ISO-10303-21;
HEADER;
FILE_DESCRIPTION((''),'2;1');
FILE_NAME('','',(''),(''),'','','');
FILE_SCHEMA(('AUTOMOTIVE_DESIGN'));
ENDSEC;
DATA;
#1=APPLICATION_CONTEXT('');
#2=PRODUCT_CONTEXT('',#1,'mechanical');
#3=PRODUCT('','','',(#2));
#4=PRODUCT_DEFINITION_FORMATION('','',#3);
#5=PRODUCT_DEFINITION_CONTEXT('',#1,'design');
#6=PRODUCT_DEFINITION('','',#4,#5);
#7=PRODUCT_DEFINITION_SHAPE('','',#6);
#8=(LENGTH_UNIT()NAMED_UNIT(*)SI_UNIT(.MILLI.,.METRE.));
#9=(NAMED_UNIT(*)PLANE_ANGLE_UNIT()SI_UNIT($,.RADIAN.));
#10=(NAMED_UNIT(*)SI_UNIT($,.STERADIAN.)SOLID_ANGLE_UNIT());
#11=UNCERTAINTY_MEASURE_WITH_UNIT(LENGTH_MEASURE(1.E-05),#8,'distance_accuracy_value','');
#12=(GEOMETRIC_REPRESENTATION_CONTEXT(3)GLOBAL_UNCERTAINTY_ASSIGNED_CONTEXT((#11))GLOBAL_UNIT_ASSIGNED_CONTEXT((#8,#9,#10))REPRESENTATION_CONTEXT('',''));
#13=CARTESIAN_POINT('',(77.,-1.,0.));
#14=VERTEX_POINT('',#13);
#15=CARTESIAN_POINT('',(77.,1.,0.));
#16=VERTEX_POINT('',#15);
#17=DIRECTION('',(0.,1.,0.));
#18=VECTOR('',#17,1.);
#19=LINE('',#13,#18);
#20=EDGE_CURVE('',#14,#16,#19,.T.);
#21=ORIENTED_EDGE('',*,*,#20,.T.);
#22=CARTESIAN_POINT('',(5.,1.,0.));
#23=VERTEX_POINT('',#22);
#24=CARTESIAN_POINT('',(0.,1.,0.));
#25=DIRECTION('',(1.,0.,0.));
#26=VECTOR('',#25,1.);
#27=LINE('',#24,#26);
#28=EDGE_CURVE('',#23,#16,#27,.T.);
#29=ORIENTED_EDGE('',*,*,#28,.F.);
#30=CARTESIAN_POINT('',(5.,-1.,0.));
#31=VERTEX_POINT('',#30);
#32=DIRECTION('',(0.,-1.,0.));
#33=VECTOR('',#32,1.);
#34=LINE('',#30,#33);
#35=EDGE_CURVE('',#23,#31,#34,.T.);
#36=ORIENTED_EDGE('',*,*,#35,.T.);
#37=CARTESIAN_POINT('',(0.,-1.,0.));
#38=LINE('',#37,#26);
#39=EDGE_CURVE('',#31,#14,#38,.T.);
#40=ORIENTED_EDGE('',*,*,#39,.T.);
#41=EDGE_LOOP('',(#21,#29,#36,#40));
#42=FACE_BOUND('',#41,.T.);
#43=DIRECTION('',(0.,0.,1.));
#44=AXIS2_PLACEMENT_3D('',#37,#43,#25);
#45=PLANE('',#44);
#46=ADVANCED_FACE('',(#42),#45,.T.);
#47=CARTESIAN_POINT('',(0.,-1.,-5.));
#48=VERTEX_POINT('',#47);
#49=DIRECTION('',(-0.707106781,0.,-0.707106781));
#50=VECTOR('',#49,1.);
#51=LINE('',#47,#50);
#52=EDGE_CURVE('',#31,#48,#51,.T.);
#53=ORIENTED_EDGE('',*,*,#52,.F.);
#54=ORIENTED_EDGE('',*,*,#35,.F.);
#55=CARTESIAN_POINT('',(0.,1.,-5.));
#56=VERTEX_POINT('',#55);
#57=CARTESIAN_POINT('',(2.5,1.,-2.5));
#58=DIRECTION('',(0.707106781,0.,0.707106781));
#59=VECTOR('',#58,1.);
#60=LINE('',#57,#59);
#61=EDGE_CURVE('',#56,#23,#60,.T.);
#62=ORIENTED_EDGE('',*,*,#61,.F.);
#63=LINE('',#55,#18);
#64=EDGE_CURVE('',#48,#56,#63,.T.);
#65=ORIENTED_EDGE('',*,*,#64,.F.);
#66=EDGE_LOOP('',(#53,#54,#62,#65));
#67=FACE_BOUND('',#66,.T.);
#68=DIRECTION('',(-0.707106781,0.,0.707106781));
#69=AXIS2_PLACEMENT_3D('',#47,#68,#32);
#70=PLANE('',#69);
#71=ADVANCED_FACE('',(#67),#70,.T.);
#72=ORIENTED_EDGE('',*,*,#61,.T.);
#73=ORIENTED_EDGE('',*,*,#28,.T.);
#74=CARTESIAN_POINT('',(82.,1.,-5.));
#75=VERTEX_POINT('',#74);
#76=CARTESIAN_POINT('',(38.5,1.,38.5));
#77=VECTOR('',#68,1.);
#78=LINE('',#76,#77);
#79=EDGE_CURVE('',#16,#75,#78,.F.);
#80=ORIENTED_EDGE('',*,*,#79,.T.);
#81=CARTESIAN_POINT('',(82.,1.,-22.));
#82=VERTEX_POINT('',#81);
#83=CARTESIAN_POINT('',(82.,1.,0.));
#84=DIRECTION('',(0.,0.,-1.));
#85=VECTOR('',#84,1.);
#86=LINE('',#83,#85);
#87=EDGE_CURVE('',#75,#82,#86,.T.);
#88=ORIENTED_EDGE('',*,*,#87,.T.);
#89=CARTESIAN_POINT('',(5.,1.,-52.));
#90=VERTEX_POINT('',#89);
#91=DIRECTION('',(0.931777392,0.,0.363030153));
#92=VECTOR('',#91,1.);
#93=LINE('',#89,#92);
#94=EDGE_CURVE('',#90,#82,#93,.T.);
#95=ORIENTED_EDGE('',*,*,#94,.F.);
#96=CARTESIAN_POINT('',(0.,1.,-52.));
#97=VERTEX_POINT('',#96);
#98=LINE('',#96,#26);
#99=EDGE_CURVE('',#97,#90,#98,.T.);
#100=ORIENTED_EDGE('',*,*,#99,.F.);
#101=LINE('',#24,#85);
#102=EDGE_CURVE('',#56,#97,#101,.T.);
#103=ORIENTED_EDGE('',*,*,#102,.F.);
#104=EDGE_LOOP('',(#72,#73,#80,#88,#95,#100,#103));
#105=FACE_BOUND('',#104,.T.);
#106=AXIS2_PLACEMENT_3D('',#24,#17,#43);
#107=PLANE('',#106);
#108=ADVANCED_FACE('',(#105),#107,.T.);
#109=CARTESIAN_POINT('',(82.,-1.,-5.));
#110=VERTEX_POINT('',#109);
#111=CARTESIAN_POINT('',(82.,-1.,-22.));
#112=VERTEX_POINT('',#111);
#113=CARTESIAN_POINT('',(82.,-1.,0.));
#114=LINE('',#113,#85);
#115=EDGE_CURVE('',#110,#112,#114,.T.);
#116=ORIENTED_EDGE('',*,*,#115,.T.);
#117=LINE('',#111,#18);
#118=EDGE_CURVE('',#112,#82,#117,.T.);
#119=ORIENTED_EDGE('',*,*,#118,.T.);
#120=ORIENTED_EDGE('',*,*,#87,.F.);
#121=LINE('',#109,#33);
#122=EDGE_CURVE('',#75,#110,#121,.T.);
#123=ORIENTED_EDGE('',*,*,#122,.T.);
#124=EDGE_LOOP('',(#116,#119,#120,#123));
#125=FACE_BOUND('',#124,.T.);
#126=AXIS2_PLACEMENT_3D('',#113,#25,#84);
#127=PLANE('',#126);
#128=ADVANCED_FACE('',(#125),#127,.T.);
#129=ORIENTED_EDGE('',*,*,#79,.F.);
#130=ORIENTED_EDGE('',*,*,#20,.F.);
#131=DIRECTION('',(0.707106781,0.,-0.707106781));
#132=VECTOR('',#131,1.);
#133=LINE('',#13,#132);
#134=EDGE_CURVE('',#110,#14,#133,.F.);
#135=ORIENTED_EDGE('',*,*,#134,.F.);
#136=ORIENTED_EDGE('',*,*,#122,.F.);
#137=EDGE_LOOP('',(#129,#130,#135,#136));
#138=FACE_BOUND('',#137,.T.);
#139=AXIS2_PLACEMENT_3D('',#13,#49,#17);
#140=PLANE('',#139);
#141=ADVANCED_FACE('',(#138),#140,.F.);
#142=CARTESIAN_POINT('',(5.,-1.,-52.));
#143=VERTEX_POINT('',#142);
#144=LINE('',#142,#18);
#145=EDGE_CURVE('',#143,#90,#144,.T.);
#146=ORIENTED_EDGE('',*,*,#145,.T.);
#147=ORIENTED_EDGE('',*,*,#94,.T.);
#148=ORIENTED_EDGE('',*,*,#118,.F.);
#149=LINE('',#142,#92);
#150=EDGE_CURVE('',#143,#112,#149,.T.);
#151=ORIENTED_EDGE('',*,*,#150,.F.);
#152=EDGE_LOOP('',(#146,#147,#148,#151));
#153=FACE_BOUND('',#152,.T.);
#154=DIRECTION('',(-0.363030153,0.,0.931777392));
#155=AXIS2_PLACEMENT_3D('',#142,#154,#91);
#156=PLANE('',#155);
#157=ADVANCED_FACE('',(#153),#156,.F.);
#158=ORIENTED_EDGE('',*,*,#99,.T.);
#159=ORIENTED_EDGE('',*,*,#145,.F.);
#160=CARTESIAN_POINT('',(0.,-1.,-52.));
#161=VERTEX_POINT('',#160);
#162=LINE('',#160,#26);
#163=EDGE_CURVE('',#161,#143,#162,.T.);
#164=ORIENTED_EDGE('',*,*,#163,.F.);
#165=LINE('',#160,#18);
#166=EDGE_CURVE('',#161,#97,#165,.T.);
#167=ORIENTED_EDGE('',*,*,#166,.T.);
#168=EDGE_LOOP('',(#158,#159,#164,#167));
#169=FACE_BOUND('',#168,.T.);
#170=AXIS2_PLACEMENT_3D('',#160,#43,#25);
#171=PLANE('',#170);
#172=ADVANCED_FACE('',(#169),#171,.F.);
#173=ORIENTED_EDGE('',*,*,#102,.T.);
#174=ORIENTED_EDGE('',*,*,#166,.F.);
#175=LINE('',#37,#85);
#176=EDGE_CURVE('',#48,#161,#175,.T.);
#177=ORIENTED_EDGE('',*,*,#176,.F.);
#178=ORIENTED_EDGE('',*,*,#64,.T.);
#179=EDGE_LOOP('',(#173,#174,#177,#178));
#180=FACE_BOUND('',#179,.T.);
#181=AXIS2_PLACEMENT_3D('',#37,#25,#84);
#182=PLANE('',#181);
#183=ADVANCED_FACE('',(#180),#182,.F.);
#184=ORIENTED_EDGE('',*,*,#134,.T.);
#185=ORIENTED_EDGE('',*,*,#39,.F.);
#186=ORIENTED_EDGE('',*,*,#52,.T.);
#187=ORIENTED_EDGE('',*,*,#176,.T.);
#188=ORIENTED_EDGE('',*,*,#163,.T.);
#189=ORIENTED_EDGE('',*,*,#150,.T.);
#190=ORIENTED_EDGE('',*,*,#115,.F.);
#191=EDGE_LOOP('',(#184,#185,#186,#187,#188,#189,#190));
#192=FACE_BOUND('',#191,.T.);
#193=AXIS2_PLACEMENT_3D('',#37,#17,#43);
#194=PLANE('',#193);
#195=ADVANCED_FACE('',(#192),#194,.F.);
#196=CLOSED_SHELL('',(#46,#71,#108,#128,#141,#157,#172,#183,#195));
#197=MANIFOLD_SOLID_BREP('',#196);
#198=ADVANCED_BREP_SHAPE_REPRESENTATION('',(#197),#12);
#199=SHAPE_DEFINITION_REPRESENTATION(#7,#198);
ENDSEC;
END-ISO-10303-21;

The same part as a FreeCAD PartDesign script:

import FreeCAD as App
import Part
import Sketcher

V = App.Vector


def edges_at(feature, points):
    """Names of the edges that pass closest to the given points."""
    edges = feature.Shape.Edges
    near = lambda p: min(range(len(edges)), key=lambda i: edges[i].distToShape(Part.Vertex(*p))[0])
    return sorted({f"Edge{near(p) + 1}" for p in points})


def add_polygon(sketch, points):
    """Adds a closed chain of lines whose ends are joined by coincident constraints."""
    first, n = sketch.GeometryCount, len(points)
    for a, b in zip(points, points[1:] + points[:1]):
        sketch.addGeometry(Part.LineSegment(App.Vector(*a, 0), App.Vector(*b, 0)), False)
    for i in range(n):
        sketch.addConstraint(Sketcher.Constraint("Coincident", first + i, 2, first + (i + 1) % n, 1))

doc = App.newDocument("Part")
body = doc.addObject("PartDesign::Body", "Body")

# Sketch on XZ plane
sketch1 = doc.addObject("Sketcher::SketchObject", "Sketch")
body.addObject(sketch1)
sketch1.AttachmentSupport = (doc.XZ_Plane, [""])
sketch1.MapMode = "FlatFace"
add_polygon(sketch1, [(82, -22), (5, -52), (0, -52), (0, 0), (82, 0)])  # lines 0-4
sketch1.addConstraint([
    Sketcher.Constraint("Horizontal", 1),
    Sketcher.Constraint("Vertical", 2),
    Sketcher.Constraint("Horizontal", 3),
    Sketcher.Constraint("Vertical", 4),
    Sketcher.Constraint("Coincident", 2, 2, -1, 1),
    Sketcher.Constraint("DistanceX", 1, 2, 1, 1, 5.0),
    Sketcher.Constraint("DistanceX", 3, 1, 3, 2, 82.0),
    Sketcher.Constraint("DistanceY", 2, 1, 2, 2, 52.0),
    Sketcher.Constraint("DistanceY", 4, 2, 4, 1, 22.0),
])
pad1 = doc.addObject("PartDesign::Pad", "Pad")
body.addObject(pad1)
pad1.Profile = sketch1
pad1.Type = "TwoLengths"
pad1.Length = 1
pad1.Length2 = 1
pad1.Reversed = True
doc.recompute()

chamfer = doc.addObject("PartDesign::Chamfer", "Chamfer")
body.addObject(chamfer)
chamfer.Base = (pad1, edges_at(pad1, [(0, 0, 0), (82, 0, 0)]))
chamfer.Size = 5

doc.recompute()
